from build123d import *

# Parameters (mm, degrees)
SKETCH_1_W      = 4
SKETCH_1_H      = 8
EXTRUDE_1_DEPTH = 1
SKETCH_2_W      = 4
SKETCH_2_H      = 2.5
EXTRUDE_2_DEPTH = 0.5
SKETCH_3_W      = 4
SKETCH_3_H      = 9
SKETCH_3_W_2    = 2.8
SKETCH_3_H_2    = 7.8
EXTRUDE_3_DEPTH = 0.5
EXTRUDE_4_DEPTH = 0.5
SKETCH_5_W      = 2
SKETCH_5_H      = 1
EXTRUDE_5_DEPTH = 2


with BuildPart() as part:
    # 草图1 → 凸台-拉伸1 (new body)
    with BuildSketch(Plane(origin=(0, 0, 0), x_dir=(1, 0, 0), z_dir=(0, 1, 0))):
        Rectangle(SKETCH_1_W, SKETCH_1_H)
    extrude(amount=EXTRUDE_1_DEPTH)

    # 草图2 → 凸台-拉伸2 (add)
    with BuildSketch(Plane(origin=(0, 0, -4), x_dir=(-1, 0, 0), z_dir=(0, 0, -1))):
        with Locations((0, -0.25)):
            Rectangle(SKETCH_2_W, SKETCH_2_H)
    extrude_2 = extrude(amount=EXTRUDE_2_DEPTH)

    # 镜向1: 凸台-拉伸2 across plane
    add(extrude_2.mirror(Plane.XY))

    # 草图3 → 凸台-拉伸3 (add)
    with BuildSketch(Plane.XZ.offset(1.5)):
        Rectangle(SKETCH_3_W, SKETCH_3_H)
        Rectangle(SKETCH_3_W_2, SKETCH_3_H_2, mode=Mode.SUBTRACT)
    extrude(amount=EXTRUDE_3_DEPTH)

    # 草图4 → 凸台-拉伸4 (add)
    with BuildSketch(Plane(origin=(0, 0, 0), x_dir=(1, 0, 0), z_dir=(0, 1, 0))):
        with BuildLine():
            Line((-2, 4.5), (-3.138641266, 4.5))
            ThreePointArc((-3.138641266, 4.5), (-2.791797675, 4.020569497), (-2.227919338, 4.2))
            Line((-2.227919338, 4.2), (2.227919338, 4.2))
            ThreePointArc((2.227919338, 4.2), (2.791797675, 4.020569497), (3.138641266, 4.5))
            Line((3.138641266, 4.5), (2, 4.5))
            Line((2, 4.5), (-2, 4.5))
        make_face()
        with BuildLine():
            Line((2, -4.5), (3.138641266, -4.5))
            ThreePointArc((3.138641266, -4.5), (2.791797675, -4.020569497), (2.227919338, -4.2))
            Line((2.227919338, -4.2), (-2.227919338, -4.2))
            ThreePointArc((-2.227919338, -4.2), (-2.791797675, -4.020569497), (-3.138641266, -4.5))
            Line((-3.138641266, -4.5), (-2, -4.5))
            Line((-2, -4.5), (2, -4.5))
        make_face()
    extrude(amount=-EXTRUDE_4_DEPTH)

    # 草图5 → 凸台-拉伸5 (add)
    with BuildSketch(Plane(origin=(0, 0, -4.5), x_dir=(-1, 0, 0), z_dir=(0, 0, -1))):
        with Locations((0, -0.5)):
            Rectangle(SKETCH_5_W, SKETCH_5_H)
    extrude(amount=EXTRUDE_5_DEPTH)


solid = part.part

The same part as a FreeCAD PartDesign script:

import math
import FreeCAD as App
import Part
import Sketcher
Q = App.Units.Quantity

doc = App.newDocument("Part")
params = doc.addObject("Spreadsheet::Sheet", "Params")
for row, (alias, value) in enumerate([
    ("sketch1_width", "4 mm"),
    ("sketch1_height", "8 mm"),
    ("pad1_length", "1 mm"),
    ("sketch2_width", "4 mm"),
    ("sketch2_height", "2.5 mm"),
    ("pad2_length", "0.5 mm"),
    ("sketch3_width", "4 mm"),
    ("sketch3_height", "9 mm"),
    ("sketch3_width2", "2.8 mm"),
    ("sketch3_height2", "7.8 mm"),
    ("pad3_length", "0.5 mm"),
    ("pad4_length", "0.5 mm"),
    ("sketch5_width", "2 mm"),
    ("sketch5_height", "1 mm"),
    ("pad5_length", "2 mm"),
], start=1):
    params.set(f"A{row}", alias)
    params.set(f"B{row}", "=" + value)
    params.setAlias(f"B{row}", alias)

body = doc.addObject("PartDesign::Body", "Body")

sketch1 = body.newObject("Sketcher::SketchObject", "Sketch")
sketch1.AttachmentSupport = (doc.getObject("XZ_Plane"), [""])
sketch1.MapMode = "FlatFace"
sketch1.addGeometry(Part.LineSegment(App.Vector(-2, -4, 0), App.Vector(-2, 4, 0)), False)
sketch1.addGeometry(Part.LineSegment(App.Vector(-2, 4, 0), App.Vector(2, 4, 0)), False)
sketch1.addGeometry(Part.LineSegment(App.Vector(2, 4, 0), App.Vector(2, -4, 0)), False)
sketch1.addGeometry(Part.LineSegment(App.Vector(2, -4, 0), App.Vector(-2, -4, 0)), False)
sketch1.addConstraint(Sketcher.Constraint("Coincident", 0, 2, 1, 1))
sketch1.addConstraint(Sketcher.Constraint("Coincident", 1, 2, 2, 1))
sketch1.addConstraint(Sketcher.Constraint("Coincident", 2, 2, 3, 1))
sketch1.addConstraint(Sketcher.Constraint("Coincident", 3, 2, 0, 1))
sketch1.addConstraint(Sketcher.Constraint("Vertical", 0))
sketch1.addConstraint(Sketcher.Constraint("Horizontal", 1))
sketch1.addConstraint(Sketcher.Constraint("Vertical", 2))
sketch1.addConstraint(Sketcher.Constraint("Horizontal", 3))
sketch1.addConstraint(Sketcher.Constraint("Symmetric", 0, 2, 2, 2, -1, 1))
sketch1.addConstraint(Sketcher.Constraint("DistanceX", 1, 1, 1, 2, Q("4 mm")))
sketch1.addConstraint(Sketcher.Constraint("DistanceY", 0, 1, 0, 2, Q("8 mm")))
sketch1.setExpression("Constraints[9]", "Params.sketch1_width")
sketch1.setExpression("Constraints[10]", "Params.sketch1_height")
pad1 = body.newObject("PartDesign::Pad", "Pad")
pad1.Profile = sketch1
pad1.setExpression("Length", "Params.pad1_length")
pad1.Reversed = True

sketch2 = body.newObject("Sketcher::SketchObject", "Sketch001")
sketch2.AttachmentSupport = (doc.getObject("XY_Plane"), [""])
sketch2.MapMode = "FlatFace"
sketch2.AttachmentOffset = App.Placement(App.Vector(0, 0, -4), App.Rotation())
sketch2.addGeometry(Part.LineSegment(App.Vector(2, 1, 0), App.Vector(2, -1.5, 0)), False)
sketch2.addGeometry(Part.LineSegment(App.Vector(2, -1.5, 0), App.Vector(-2, -1.5, 0)), False)
sketch2.addGeometry(Part.LineSegment(App.Vector(-2, -1.5, 0), App.Vector(-2, 1, 0)), False)
sketch2.addGeometry(Part.LineSegment(App.Vector(-2, 1, 0), App.Vector(2, 1, 0)), False)
sketch2.addConstraint(Sketcher.Constraint("Coincident", 0, 2, 1, 1))
sketch2.addConstraint(Sketcher.Constraint("Coincident", 1, 2, 2, 1))
sketch2.addConstraint(Sketcher.Constraint("Coincident", 2, 2, 3, 1))
sketch2.addConstraint(Sketcher.Constraint("Coincident", 3, 2, 0, 1))
sketch2.addConstraint(Sketcher.Constraint("Vertical", 0))
sketch2.addConstraint(Sketcher.Constraint("Horizontal", 1))
sketch2.addConstraint(Sketcher.Constraint("Vertical", 2))
sketch2.addConstraint(Sketcher.Constraint("Horizontal", 3))
sketch2.addConstraint(Sketcher.Constraint("DistanceX", 1, 2, 1, 1, Q("4 mm")))
sketch2.addConstraint(Sketcher.Constraint("DistanceY", 0, 2, 0, 1, Q("2.5 mm")))
sketch2.addConstraint(Sketcher.Constraint("DistanceX", -1, 1, 0, 2, Q("2 mm")))
sketch2.addConstraint(Sketcher.Constraint("DistanceY", -1, 1, 2, 2, Q("1 mm")))
sketch2.setExpression("Constraints[8]", "Params.sketch2_width")
sketch2.setExpression("Constraints[9]", "Params.sketch2_height")
pad2 = body.newObject("PartDesign::Pad", "Pad001")
pad2.Profile = sketch2
pad2.setExpression("Length", "Params.pad2_length")
pad2.Reversed = True
doc.recompute()

mirrored = body.newObject("PartDesign::Mirrored", "Mirrored")
mirrored.Originals = [pad2]
mirrored.MirrorPlane = (doc.getObject("XY_Plane"), [""])
body.Tip = mirrored

sketch3 = body.newObject("Sketcher::SketchObject", "Sketch002")
sketch3.AttachmentSupport = (doc.getObject("XZ_Plane"), [""])
sketch3.MapMode = "FlatFace"
sketch3.AttachmentOffset = App.Placement(App.Vector(0, 0, 1.5), App.Rotation())
sketch3.addGeometry(Part.LineSegment(App.Vector(-2, 4.5, 0), App.Vector(-2, -4.5, 0)), False)
sketch3.addGeometry(Part.LineSegment(App.Vector(-2, -4.5, 0), App.Vector(2, -4.5, 0)), False)
sketch3.addGeometry(Part.LineSegment(App.Vector(2, -4.5, 0), App.Vector(2, 4.5, 0)), False)
sketch3.addGeometry(Part.LineSegment(App.Vector(2, 4.5, 0), App.Vector(-2, 4.5, 0)), False)
sketch3.addGeometry(Part.LineSegment(App.Vector(1.4, -3.9, 0), App.Vector(-1.4, -3.9, 0)), False)
sketch3.addGeometry(Part.LineSegment(App.Vector(-1.4, -3.9, 0), App.Vector(-1.4, 3.9, 0)), False)
sketch3.addGeometry(Part.LineSegment(App.Vector(-1.4, 3.9, 0), App.Vector(1.4, 3.9, 0)), False)
sketch3.addGeometry(Part.LineSegment(App.Vector(1.4, 3.9, 0), App.Vector(1.4, -3.9, 0)), False)
sketch3.addConstraint(Sketcher.Constraint("Coincident", 0, 2, 1, 1))
sketch3.addConstraint(Sketcher.Constraint("Coincident", 1, 2, 2, 1))
sketch3.addConstraint(Sketcher.Constraint("Coincident", 2, 2, 3, 1))
sketch3.addConstraint(Sketcher.Constraint("Coincident", 3, 2, 0, 1))
sketch3.addConstraint(Sketcher.Constraint("Coincident", 4, 2, 5, 1))
sketch3.addConstraint(Sketcher.Constraint("Coincident", 5, 2, 6, 1))
sketch3.addConstraint(Sketcher.Constraint("Coincident", 6, 2, 7, 1))
sketch3.addConstraint(Sketcher.Constraint("Coincident", 7, 2, 4, 1))
sketch3.addConstraint(Sketcher.Constraint("Vertical", 0))
sketch3.addConstraint(Sketcher.Constraint("Horizontal", 1))
sketch3.addConstraint(Sketcher.Constraint("Vertical", 2))
sketch3.addConstraint(Sketcher.Constraint("Horizontal", 3))
sketch3.addConstraint(Sketcher.Constraint("Horizontal", 4))
sketch3.addConstraint(Sketcher.Constraint("Vertical", 5))
sketch3.addConstraint(Sketcher.Constraint("Horizontal", 6))
sketch3.addConstraint(Sketcher.Constraint("Vertical", 7))
sketch3.addConstraint(Sketcher.Constraint("Symmetric", 0, 2, 2, 2, -1, 1))
sketch3.addConstraint(Sketcher.Constraint("Symmetric", 4, 2, 6, 2, -1, 1))
sketch3.addConstraint(Sketcher.Constraint("DistanceX", 1, 1, 1, 2, Q("4 mm")))
sketch3.addConstraint(Sketcher.Constraint("DistanceY", 0, 2, 0, 1, Q("9 mm")))
sketch3.addConstraint(Sketcher.Constraint("DistanceX", 4, 2, 4, 1, Q("2.8 mm")))
sketch3.addConstraint(Sketcher.Constraint("DistanceY", 5, 1, 5, 2, Q("7.8 mm")))
sketch3.setExpression("Constraints[18]", "Params.sketch3_width")
sketch3.setExpression("Constraints[19]", "Params.sketch3_height")
sketch3.setExpression("Constraints[20]", "Params.sketch3_width2")
sketch3.setExpression("Constraints[21]", "Params.sketch3_height2")
pad3 = body.newObject("PartDesign::Pad", "Pad002")
pad3.Profile = sketch3
pad3.setExpression("Length", "Params.pad3_length")

sketch4 = body.newObject("Sketcher::SketchObject", "Sketch003")
sketch4.AttachmentSupport = (doc.getObject("XZ_Plane"), [""])
sketch4.MapMode = "FlatFace"
sketch4.addGeometry(Part.ArcOfCircle(Part.Circle(App.Vector(-2.6, -4.5, 0), App.Vector(0, 0, 1), 0.5), math.radians(36), math.radians(180)), False)
sketch4.addGeometry(Part.LineSegment(App.Vector(-2.2, -4.2, 0), App.Vector(2.2, -4.2, 0)), False)
sketch4.addGeometry(Part.ArcOfCircle(Part.Circle(App.Vector(2.6, -4.5, 0), App.Vector(0, 0, 1), 0.5), math.radians(0), math.radians(144)), False)
sketch4.addGeometry(Part.LineSegment(App.Vector(3.1, -4.5, 0), App.Vector(-3.1, -4.5, 0)), False)
sketch4.addGeometry(Part.ArcOfCircle(Part.Circle(App.Vector(2.6, 4.5, 0), App.Vector(0, 0, 1), 0.5), math.radians(-144), math.radians(0)), False)
sketch4.addGeometry(Part.LineSegment(App.Vector(2.2, 4.2, 0), App.Vector(-2.2, 4.2, 0)), False)
sketch4.addGeometry(Part.ArcOfCircle(Part.Circle(App.Vector(-2.6, 4.5, 0), App.Vector(0, 0, 1), 0.5), math.radians(180), math.radians(324)), False)
sketch4.addGeometry(Part.LineSegment(App.Vector(-3.1, 4.5, 0), App.Vector(3.1, 4.5, 0)), False)
sketch4.addConstraint(Sketcher.Constraint("Coincident", 0, 1, 1, 1))
sketch4.addConstraint(Sketcher.Constraint("Coincident", 1, 2, 2, 2))
sketch4.addConstraint(Sketcher.Constraint("Coincident", 2, 1, 3, 1))
sketch4.addConstraint(Sketcher.Constraint("Coincident", 3, 2, 0, 2))
sketch4.addConstraint(Sketcher.Constraint("Coincident", 4, 1, 5, 1))
sketch4.addConstraint(Sketcher.Constraint("Coincident", 5, 2, 6, 2))
sketch4.addConstraint(Sketcher.Constraint("Coincident", 6, 1, 7, 1))
sketch4.addConstraint(Sketcher.Constraint("Coincident", 7, 2, 4, 2))
sketch4.addConstraint(Sketcher.Constraint("Horizontal", 1))
sketch4.addConstraint(Sketcher.Constraint("Horizontal", 3))
sketch4.addConstraint(Sketcher.Constraint("Horizontal", 5))
sketch4.addConstraint(Sketcher.Constraint("Horizontal", 7))
sketch4.addConstraint(Sketcher.Constraint("Equal", 0, 2))
sketch4.addConstraint(Sketcher.Constraint("Equal", 2, 4))
sketch4.addConstraint(Sketcher.Constraint("Equal", 4, 6))
sketch4.addConstraint(Sketcher.Constraint("Symmetric", 0, 3, 4, 3, -1, 1))
sketch4.addConstraint(Sketcher.Constraint("Symmetric", 2, 3, 6, 3, -1, 1))
sketch4.addConstraint(Sketcher.Constraint("Symmetric", 0, 3, 2, 3, -2))
sketch4.addConstraint(Sketcher.Constraint("Horizontal", 0, 3, 2, 1))
sketch4.addConstraint(Sketcher.Constraint("Horizontal", 4, 3, 6, 1))
sketch4.addConstraint(Sketcher.Constraint("Vertical", 1, 2, 4, 1))
sketch4.addConstraint(Sketcher.Constraint("DistanceY", 2, 3, 4, 3, Q("9 mm")))
sketch4.addConstraint(Sketcher.Constraint("DistanceY", 0, 1, -1, 1, Q("4.2 mm")))
sketch4.addConstraint(Sketcher.Constraint("Radius", 0, Q("0.504772 mm")))
sketch4.addConstraint(Sketcher.Constraint("DistanceX", 1, 1, 1, 2, Q("4.455839 mm")))
pad4 = body.newObject("PartDesign::Pad", "Pad003")
pad4.Profile = sketch4
pad4.setExpression("Length", "Params.pad4_length")

sketch5 = body.newObject("Sketcher::SketchObject", "Sketch004")
sketch5.AttachmentSupport = (doc.getObject("XY_Plane"), [""])
sketch5.MapMode = "FlatFace"
sketch5.AttachmentOffset = App.Placement(App.Vector(0, 0, -4.5), App.Rotation())
sketch5.addGeometry(Part.LineSegment(App.Vector(1, 0, 0), App.Vector(1, -1, 0)), False)
sketch5.addGeometry(Part.LineSegment(App.Vector(1, -1, 0), App.Vector(-1, -1, 0)), False)
sketch5.addGeometry(Part.LineSegment(App.Vector(-1, -1, 0), App.Vector(-1, 0, 0)), False)
sketch5.addGeometry(Part.LineSegment(App.Vector(-1, 0, 0), App.Vector(1, 0, 0)), False)
sketch5.addConstraint(Sketcher.Constraint("Coincident", 0, 2, 1, 1))
sketch5.addConstraint(Sketcher.Constraint("Coincident", 1, 2, 2, 1))
sketch5.addConstraint(Sketcher.Constraint("Coincident", 2, 2, 3, 1))
sketch5.addConstraint(Sketcher.Constraint("Coincident", 3, 2, 0, 1))
sketch5.addConstraint(Sketcher.Constraint("Vertical", 0))
sketch5.addConstraint(Sketcher.Constraint("Horizontal", 1))
sketch5.addConstraint(Sketcher.Constraint("Vertical", 2))
sketch5.addConstraint(Sketcher.Constraint("Horizontal", 3))
sketch5.addConstraint(Sketcher.Constraint("Symmetric", 2, 2, 3, 2, -1, 1))
sketch5.addConstraint(Sketcher.Constraint("DistanceX", 1, 2, 1, 1, Q("2 mm")))
sketch5.addConstraint(Sketcher.Constraint("DistanceY", 0, 2, 0, 1, Q("1 mm")))
sketch5.setExpression("Constraints[9]", "Params.sketch5_width")
sketch5.setExpression("Constraints[10]", "Params.sketch5_height")
pad5 = body.newObject("PartDesign::Pad", "Pad004")
pad5.Profile = sketch5
pad5.setExpression("Length", "Params.pad5_length")
pad5.Reversed = True

doc.recompute()
